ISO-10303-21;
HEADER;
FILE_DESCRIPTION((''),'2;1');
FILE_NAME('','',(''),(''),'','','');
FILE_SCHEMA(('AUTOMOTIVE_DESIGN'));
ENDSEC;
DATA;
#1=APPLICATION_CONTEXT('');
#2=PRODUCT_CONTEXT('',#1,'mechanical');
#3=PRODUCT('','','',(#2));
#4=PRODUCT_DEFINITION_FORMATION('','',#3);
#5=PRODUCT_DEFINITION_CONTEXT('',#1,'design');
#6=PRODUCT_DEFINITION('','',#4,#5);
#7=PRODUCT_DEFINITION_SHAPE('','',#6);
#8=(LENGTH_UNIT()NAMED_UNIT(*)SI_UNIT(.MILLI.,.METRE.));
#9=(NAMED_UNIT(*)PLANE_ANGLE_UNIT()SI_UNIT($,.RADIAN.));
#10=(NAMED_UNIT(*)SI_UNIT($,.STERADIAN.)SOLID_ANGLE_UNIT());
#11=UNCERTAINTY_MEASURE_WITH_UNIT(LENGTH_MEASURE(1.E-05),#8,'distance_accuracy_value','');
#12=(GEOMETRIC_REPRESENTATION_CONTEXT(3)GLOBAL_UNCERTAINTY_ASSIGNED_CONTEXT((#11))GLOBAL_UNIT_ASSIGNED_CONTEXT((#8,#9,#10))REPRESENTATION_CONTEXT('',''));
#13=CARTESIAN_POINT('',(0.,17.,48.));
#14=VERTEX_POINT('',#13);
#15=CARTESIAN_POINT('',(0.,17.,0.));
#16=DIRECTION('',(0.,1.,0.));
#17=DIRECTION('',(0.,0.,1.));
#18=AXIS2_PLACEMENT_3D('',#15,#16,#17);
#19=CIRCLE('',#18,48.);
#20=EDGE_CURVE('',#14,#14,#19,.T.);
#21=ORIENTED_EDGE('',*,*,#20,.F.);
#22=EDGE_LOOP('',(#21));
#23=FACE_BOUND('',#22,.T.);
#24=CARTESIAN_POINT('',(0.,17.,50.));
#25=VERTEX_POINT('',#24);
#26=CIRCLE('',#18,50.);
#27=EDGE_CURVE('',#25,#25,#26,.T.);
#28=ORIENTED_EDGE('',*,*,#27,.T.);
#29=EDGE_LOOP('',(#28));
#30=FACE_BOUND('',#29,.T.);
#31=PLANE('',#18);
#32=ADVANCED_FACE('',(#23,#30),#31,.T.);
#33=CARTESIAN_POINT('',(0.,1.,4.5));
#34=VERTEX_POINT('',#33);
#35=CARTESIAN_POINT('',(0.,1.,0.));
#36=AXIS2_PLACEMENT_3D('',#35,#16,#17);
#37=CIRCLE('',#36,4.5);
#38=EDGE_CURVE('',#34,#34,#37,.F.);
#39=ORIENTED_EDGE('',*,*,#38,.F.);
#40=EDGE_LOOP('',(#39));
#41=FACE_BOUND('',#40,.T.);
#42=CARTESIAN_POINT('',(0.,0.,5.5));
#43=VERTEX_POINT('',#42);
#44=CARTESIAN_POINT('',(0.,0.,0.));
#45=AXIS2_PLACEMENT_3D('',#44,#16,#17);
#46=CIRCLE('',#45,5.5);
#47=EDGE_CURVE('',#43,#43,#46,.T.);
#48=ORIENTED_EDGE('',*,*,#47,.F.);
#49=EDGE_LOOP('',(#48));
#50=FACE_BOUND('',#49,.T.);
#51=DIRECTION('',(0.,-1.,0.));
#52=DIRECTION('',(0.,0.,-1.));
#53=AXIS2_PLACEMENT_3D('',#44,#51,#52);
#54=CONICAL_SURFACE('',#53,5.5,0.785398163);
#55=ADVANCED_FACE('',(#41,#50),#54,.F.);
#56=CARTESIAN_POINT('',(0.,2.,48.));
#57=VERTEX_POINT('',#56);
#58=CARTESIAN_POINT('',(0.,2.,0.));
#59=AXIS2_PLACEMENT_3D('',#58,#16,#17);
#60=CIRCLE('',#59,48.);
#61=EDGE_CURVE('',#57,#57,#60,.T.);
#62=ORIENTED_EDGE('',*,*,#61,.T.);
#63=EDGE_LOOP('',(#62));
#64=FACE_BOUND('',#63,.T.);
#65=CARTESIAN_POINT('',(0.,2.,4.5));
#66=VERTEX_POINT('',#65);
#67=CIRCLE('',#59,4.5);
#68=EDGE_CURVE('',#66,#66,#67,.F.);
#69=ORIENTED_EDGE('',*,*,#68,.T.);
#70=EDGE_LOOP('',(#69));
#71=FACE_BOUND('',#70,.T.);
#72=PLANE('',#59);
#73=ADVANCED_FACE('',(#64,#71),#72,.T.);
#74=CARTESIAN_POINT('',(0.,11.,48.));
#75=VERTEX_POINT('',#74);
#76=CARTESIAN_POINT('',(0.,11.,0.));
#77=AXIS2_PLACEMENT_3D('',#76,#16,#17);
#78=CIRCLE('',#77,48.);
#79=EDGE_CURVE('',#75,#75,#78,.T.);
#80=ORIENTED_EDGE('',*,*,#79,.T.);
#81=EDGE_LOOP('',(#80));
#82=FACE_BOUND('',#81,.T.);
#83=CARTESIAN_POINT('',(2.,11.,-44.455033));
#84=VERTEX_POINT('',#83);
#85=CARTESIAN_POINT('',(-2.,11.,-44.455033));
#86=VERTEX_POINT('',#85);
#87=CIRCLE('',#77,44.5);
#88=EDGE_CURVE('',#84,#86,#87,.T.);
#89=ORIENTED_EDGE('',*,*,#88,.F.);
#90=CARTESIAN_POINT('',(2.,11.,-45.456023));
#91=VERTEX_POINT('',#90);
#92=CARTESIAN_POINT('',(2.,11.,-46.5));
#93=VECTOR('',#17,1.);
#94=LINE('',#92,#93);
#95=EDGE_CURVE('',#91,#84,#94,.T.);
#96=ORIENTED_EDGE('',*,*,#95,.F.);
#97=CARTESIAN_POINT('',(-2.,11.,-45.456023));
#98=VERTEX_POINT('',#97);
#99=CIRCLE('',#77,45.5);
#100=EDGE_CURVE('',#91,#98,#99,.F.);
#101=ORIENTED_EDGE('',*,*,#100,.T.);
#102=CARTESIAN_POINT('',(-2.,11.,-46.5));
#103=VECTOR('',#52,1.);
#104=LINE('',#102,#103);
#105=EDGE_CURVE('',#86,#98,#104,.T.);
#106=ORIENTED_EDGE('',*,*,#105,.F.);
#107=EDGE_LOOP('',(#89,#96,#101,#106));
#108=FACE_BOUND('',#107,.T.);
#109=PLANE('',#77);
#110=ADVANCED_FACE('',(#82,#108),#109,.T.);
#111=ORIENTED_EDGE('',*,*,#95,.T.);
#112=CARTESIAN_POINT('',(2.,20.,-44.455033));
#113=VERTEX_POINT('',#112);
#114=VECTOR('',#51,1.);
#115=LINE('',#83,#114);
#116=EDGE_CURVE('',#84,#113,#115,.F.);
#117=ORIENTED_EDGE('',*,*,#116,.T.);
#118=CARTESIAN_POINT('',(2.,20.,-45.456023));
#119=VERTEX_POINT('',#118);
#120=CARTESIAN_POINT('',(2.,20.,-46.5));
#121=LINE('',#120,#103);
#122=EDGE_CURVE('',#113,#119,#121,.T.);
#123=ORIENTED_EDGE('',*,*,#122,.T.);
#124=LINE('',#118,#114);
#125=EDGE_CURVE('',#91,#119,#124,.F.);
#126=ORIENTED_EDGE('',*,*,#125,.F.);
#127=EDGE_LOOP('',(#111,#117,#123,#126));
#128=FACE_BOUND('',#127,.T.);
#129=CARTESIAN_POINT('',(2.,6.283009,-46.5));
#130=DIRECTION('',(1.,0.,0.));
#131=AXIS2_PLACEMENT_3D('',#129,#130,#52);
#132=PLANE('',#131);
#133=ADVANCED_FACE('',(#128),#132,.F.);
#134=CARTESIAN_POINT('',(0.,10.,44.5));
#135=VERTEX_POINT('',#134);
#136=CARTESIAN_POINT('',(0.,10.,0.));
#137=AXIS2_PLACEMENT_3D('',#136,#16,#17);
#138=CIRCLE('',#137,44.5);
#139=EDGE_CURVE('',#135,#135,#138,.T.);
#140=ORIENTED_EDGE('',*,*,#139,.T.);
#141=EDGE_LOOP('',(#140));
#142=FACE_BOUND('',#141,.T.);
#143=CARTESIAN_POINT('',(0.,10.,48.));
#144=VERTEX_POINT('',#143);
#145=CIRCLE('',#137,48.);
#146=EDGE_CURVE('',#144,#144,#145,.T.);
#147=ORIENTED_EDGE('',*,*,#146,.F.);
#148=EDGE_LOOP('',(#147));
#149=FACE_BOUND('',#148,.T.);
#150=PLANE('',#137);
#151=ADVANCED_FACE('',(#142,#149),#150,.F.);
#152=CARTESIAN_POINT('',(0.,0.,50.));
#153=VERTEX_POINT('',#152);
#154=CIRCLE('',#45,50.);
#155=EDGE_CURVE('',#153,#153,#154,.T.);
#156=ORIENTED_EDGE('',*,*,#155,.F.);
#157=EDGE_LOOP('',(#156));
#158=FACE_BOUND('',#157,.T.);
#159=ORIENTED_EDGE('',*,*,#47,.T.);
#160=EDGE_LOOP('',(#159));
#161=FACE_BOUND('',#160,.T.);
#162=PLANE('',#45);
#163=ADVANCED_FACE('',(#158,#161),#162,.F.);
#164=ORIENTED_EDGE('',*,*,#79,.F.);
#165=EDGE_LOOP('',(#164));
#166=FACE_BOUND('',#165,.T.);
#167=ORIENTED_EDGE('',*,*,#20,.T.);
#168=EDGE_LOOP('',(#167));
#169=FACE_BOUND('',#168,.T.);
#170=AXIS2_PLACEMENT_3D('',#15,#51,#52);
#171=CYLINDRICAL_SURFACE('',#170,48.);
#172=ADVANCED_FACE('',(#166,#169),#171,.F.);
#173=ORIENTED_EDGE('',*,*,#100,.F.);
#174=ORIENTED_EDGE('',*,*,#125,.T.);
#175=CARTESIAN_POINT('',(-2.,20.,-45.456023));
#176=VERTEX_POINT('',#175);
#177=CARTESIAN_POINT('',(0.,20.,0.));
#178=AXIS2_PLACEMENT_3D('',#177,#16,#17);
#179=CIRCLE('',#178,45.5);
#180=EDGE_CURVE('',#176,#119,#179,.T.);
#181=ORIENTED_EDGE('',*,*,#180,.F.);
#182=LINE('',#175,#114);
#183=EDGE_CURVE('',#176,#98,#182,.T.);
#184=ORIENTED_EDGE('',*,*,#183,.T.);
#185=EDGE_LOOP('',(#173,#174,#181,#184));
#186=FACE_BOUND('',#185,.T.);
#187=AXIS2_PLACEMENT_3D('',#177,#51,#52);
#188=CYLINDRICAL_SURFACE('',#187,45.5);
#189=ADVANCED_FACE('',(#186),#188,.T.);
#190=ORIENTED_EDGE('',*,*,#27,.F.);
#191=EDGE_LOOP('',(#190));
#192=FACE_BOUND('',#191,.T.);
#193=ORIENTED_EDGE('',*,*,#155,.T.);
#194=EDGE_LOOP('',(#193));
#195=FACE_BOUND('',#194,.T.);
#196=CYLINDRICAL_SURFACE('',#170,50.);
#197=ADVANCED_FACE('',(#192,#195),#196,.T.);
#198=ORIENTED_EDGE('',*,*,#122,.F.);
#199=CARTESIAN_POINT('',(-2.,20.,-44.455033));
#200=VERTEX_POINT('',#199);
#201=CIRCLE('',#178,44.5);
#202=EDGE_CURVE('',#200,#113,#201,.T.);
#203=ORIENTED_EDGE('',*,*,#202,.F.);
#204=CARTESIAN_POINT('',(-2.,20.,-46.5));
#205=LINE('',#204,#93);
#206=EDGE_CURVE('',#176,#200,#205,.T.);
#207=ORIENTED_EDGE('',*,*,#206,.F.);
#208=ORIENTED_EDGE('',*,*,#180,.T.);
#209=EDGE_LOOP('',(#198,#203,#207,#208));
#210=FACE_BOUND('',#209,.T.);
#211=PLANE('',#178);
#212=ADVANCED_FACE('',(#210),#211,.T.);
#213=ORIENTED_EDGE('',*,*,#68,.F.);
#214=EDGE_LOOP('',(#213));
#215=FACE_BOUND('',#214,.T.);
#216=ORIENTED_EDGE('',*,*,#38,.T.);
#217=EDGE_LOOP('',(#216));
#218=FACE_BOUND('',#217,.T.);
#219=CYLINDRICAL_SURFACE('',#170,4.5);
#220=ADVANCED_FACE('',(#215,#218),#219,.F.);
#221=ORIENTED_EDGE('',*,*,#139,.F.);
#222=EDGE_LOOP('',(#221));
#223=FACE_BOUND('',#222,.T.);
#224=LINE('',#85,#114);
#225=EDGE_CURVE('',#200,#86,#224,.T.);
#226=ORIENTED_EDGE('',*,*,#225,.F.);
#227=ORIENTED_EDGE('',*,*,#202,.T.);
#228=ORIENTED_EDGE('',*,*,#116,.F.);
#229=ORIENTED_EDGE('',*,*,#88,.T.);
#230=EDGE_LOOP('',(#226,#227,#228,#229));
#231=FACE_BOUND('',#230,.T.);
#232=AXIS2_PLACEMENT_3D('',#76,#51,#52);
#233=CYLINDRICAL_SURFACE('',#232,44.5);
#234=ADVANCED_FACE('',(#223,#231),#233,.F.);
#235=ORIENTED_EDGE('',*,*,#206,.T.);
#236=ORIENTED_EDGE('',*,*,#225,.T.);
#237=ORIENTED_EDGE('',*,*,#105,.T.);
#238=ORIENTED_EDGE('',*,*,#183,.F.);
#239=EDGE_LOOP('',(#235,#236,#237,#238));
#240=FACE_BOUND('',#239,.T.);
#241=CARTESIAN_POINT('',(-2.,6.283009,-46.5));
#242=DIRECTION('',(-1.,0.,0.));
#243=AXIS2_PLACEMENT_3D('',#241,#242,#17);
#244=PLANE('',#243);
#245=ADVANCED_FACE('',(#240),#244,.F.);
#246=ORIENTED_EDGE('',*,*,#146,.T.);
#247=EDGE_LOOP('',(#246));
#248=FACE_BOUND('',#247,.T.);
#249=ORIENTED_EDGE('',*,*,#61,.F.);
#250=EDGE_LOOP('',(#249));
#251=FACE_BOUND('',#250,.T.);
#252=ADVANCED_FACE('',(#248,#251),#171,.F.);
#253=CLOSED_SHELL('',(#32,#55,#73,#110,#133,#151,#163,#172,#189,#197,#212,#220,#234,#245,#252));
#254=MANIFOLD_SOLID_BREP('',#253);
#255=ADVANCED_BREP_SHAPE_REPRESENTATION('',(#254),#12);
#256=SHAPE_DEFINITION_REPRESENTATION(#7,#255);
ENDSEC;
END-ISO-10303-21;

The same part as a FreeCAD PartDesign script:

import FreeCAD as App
import Part
import Sketcher
from FreeCAD import Vector
Q = App.Units.Quantity


def edges_at(feature, points):
    """Names of the edges that pass closest to the given points."""
    edges = feature.Shape.Edges
    near = lambda p: min(range(len(edges)), key=lambda i: edges[i].distToShape(Part.Vertex(*p))[0])
    return sorted({f"Edge{near(p) + 1}" for p in points})


def faces_at(feature, points):
    """Names of the faces that lie closest to the given points."""
    faces = feature.Shape.Faces
    near = lambda p: min(range(len(faces)), key=lambda i: faces[i].distToShape(Part.Vertex(*p))[0])
    return sorted({f"Face{near(p) + 1}" for p in points})

doc = App.newDocument("Part")
body = doc.addObject("PartDesign::Body", "Body")

sketch1 = body.newObject("Sketcher::SketchObject", "Sketch")
sketch1.AttachmentSupport = (doc.getObject("XZ_Plane"), [""])
sketch1.MapMode = "FlatFace"
sketch1.addGeometry(Part.Circle(Vector(0, 0, 0), Vector(0, 0, 1), 50), False)
sketch1.addConstraint(Sketcher.Constraint("Coincident", 0, 3, -1, 1))
sketch1.addConstraint(Sketcher.Constraint("Diameter", 0, Q("100 mm")))
pad1 = body.newObject("PartDesign::Pad", "Pad")
pad1.Profile = sketch1
pad1.Length = 17
pad1.Reversed = True
doc.recompute()

thickness = body.newObject("PartDesign::Thickness", "Thickness")
thickness.Base = (pad1, faces_at(pad1, [(0, 17, 0)]))
thickness.Value = 2
thickness.Reversed = True
thickness.Join = "Intersection"

sketch2 = body.newObject("Sketcher::SketchObject", "Sketch001")
sketch2.AttachmentSupport = (doc.getObject("XZ_Plane"), [""])
sketch2.MapMode = "FlatFace"
sketch2.addGeometry(Part.Circle(Vector(0, 0, 0), Vector(0, 0, 1), 4.5), False)
sketch2.addConstraint(Sketcher.Constraint("Coincident", 0, 3, -1, 1))
sketch2.addConstraint(Sketcher.Constraint("Diameter", 0, Q("9 mm")))
pocket1 = body.newObject("PartDesign::Pocket", "Pocket")
pocket1.Profile = sketch2
pocket1.Type = "ThroughAll"
doc.recompute()

chamfer = body.newObject("PartDesign::Chamfer", "Chamfer")
chamfer.Base = (pocket1, edges_at(pocket1, [(0, 0, -4.5)]))
chamfer.Size = 1

sketch3 = body.newObject("Sketcher::SketchObject", "Sketch002")
sketch3.AttachmentSupport = (doc.getObject("XZ_Plane"), [""])
sketch3.MapMode = "FlatFace"
sketch3.AttachmentOffset = App.Placement(Vector(0, 0, -10), App.Rotation())
sketch3.addGeometry(Part.Circle(Vector(0, 0, 0), Vector(0, 0, 1), 50), False)
sketch3.addGeometry(Part.Circle(Vector(0, 0, 0), Vector(0, 0, 1), 44), False)
sketch3.addConstraint(Sketcher.Constraint("Coincident", 0, 3, -1, 1))
sketch3.addConstraint(Sketcher.Constraint("Coincident", 1, 3, -1, 1))
sketch3.addConstraint(Sketcher.Constraint("Diameter", 0, Q("100 mm")))
sketch3.addConstraint(Sketcher.Constraint("Diameter", 1, Q("89 mm")))
pad2 = body.newObject("PartDesign::Pad", "Pad001")
pad2.Profile = sketch3
pad2.Length = 1
pad2.Reversed = True

sketch4 = body.newObject("Sketcher::SketchObject", "Sketch003")
sketch4.AttachmentSupport = (doc.getObject("XZ_Plane"), [""])
sketch4.MapMode = "FlatFace"
sketch4.AttachmentOffset = App.Placement(Vector(0, 0, -10), App.Rotation())
sketch4.addGeometry(Part.Circle(Vector(0, 0, 0), Vector(0, 0, 1), 46), False)
sketch4.addGeometry(Part.Circle(Vector(0, 0, 0), Vector(0, 0, 1), 44), False)
sketch4.addConstraint(Sketcher.Constraint("Coincident", 0, 3, -1, 1))
sketch4.addConstraint(Sketcher.Constraint("Coincident", 1, 3, -1, 1))
sketch4.addConstraint(Sketcher.Constraint("Diameter", 0, Q("91 mm")))
sketch4.addConstraint(Sketcher.Constraint("Diameter", 1, Q("89 mm")))
pad3 = body.newObject("PartDesign::Pad", "Pad002")
pad3.Profile = sketch4
pad3.Length = 10
pad3.Reversed = True

sketch5 = body.newObject("Sketcher::SketchObject", "Sketch004")
sketch5.AttachmentSupport = (doc.getObject("XZ_Plane"), [""])
sketch5.MapMode = "FlatFace"
sketch5.AttachmentOffset = App.Placement(Vector(0, 0, -20), App.Rotation())
sketch5.addGeometry(Part.LineSegment(Vector(-2, -46.5, 0), Vector(-2, -44, 0)), False)
sketch5.addGeometry(Part.LineSegment(Vector(-2, -44, 0), Vector(2, -44, 0)), False)
sketch5.addGeometry(Part.LineSegment(Vector(2, -44, 0), Vector(2, -46.5, 0)), False)
sketch5.addGeometry(Part.LineSegment(Vector(2, -46.5, 0), Vector(-2, -46.5, 0)), False)
sketch5.addConstraint(Sketcher.Constraint("Coincident", 0, 2, 1, 1))
sketch5.addConstraint(Sketcher.Constraint("Coincident", 1, 2, 2, 1))
sketch5.addConstraint(Sketcher.Constraint("Coincident", 2, 2, 3, 1))
sketch5.addConstraint(Sketcher.Constraint("Coincident", 3, 2, 0, 1))
sketch5.addConstraint(Sketcher.Constraint("Vertical", 0))
sketch5.addConstraint(Sketcher.Constraint("Horizontal", 1))
sketch5.addConstraint(Sketcher.Constraint("Vertical", 2))
sketch5.addConstraint(Sketcher.Constraint("Horizontal", 3))
sketch5.addConstraint(Sketcher.Constraint("DistanceX", 1, 1, 1, 2, Q("4 mm")))
sketch5.addConstraint(Sketcher.Constraint("DistanceY", 0, 1, 0, 2, Q("2.5 mm")))
sketch5.addConstraint(Sketcher.Constraint("DistanceX", 0, 2, -1, 1, Q("2 mm")))
sketch5.addConstraint(Sketcher.Constraint("DistanceY", 0, 2, -1, 1, Q("44 mm")))
pocket2 = body.newObject("PartDesign::Pocket", "Pocket001")
pocket2.Profile = sketch5
pocket2.Length = 9
pocket2.Reversed = True

doc.recompute()
